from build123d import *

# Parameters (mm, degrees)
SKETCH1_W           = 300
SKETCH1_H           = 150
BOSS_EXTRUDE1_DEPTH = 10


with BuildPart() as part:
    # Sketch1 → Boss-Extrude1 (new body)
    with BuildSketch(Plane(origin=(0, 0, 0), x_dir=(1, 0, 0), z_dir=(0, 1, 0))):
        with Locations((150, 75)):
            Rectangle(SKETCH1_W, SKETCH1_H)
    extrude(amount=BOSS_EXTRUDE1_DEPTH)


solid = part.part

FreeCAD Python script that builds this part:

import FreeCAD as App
import Part
import Sketcher

V = App.Vector
Q = App.Units.Quantity

doc = App.newDocument("Part")
params = doc.addObject("Spreadsheet::Sheet", "Params")
for row, (alias, value) in enumerate([
    ("sketch1_width", "300 mm"),
    ("sketch1_height", "150 mm"),
    ("pad1_length", "10 mm"),
], start=1):
    params.set(f"A{row}", alias)
    params.set(f"B{row}", "=" + value)
    params.setAlias(f"B{row}", alias)

body = doc.addObject("PartDesign::Body", "Body")

sketch1 = doc.addObject("Sketcher::SketchObject", "Sketch")
body.addObject(sketch1)
sketch1.AttachmentSupport = (doc.XZ_Plane, [""])
sketch1.MapMode = "FlatFace"
sketch1.addGeometry([
    Part.LineSegment(V(0, -150, 0), V(0, 0, 0)),
    Part.LineSegment(V(0, 0, 0), V(300, 0, 0)),
    Part.LineSegment(V(300, 0, 0), V(300, -150, 0)),
    Part.LineSegment(V(300, -150, 0), V(0, -150, 0)),
], False)
sketch1.addConstraint([
    Sketcher.Constraint("Coincident", 0, 2, 1, 1),
    Sketcher.Constraint("Coincident", 1, 2, 2, 1),
    Sketcher.Constraint("Coincident", 2, 2, 3, 1),
    Sketcher.Constraint("Coincident", 3, 2, 0, 1),
    Sketcher.Constraint("Vertical", 0),
    Sketcher.Constraint("Horizontal", 1),
    Sketcher.Constraint("Vertical", 2),
    Sketcher.Constraint("Horizontal", 3),
    Sketcher.Constraint("Coincident", 0, 2, -1, 1),
    Sketcher.Constraint("DistanceX", 1, 1, 1, 2, Q("300 mm")),
    Sketcher.Constraint("DistanceY", 0, 1, 0, 2, Q("150 mm")),
])
sketch1.setExpression("Constraints[9]", "Params.sketch1_width")
sketch1.setExpression("Constraints[10]", "Params.sketch1_height")
pad1 = doc.addObject("PartDesign::Pad", "Pad")
body.addObject(pad1)
pad1.Profile = sketch1
pad1.setExpression("Length", "Params.pad1_length")
pad1.Reversed = True

doc.recompute()
